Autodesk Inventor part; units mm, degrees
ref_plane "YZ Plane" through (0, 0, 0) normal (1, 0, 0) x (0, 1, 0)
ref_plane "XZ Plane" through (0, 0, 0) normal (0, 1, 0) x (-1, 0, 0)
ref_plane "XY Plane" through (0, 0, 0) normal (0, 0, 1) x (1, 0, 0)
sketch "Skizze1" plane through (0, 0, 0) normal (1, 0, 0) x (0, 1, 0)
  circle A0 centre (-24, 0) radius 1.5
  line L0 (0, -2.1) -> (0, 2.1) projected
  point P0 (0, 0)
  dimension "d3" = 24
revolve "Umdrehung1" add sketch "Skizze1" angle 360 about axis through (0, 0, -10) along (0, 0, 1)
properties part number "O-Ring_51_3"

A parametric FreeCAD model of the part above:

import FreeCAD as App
import Part
import Sketcher
from FreeCAD import Vector

doc = App.newDocument("Part")
body = doc.addObject("PartDesign::Body", "Body")

sketch1 = body.newObject("Sketcher::SketchObject", "Sketch")
sketch1.AttachmentSupport = (doc.getObject("YZ_Plane"), [""])
sketch1.MapMode = "FlatFace"
sketch1.addGeometry(Part.Circle(Vector(-24, 0, 0), Vector(0, 0, 1), 1.5), False)
sketch1.addConstraint([
    Sketcher.Constraint("PointOnObject", 0, 3, -1),
    Sketcher.Constraint("Diameter", 0, 3.0),
    Sketcher.Constraint("DistanceX", 0, 3, -1, 1, 24.0),
])
revolution = body.newObject("PartDesign::Revolution", "Revolution")
revolution.Profile = sketch1
revolution.ReferenceAxis = (sketch1, ["V_Axis"])
revolution.Angle = 360

doc.recompute()
